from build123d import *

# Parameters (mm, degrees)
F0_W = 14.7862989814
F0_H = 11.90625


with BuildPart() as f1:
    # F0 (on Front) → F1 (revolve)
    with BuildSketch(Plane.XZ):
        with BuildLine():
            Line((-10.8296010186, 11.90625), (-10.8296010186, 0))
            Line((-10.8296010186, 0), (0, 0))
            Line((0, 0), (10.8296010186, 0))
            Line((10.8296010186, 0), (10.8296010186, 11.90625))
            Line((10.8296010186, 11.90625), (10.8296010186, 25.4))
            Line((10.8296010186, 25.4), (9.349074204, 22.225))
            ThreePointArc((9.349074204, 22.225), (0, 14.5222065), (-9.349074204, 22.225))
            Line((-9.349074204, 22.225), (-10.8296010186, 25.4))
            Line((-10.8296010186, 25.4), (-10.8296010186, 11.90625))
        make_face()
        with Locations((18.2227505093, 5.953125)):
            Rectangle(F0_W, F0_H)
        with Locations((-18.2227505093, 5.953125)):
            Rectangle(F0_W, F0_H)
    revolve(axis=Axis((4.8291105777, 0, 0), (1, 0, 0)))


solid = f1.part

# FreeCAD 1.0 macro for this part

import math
import FreeCAD as App
import Part
import Sketcher
from FreeCAD import Vector
Q = App.Units.Quantity

doc = App.newDocument("Part")
params = doc.addObject("Spreadsheet::Sheet", "Params")
for row, (alias, value) in enumerate([
    ("sketch1_radius", "0.375 in"),
    ("sketch1_width", "2.017 in"),
    ("sketch1_height", "0.46875 in"),
    ("revolution_angle", "360 deg"),
], start=1):
    params.set(f"A{row}", alias)
    params.set(f"B{row}", "=" + value)
    params.setAlias(f"B{row}", alias)

body = doc.addObject("PartDesign::Body", "Body")

# Sketch on XZ plane
sketch1 = body.newObject("Sketcher::SketchObject", "Sketch")
sketch1.AttachmentSupport = (doc.getObject("XZ_Plane"), [""])
sketch1.MapMode = "FlatFace"
sketch1.addGeometry(Part.LineSegment(Vector(25.6, 0, 0), Vector(25.6, 11.9, 0)), False)
sketch1.addGeometry(Part.LineSegment(Vector(25.6, 11.9, 0), Vector(10.8, 11.9, 0)), False)
sketch1.addGeometry(Part.LineSegment(Vector(10.8, 11.9, 0), Vector(10.8, 25.4, 0)), False)
sketch1.addGeometry(Part.LineSegment(Vector(10.8, 25.4, 0), Vector(9.3, 22.2, 0)), False)
sketch1.addGeometry(Part.ArcOfCircle(Part.Circle(Vector(0, 24, 0), Vector(0, 0, 1), 9.5), math.radians(-169), math.radians(-11)), False)
sketch1.addGeometry(Part.LineSegment(Vector(-9.3, 22.2, 0), Vector(-10.8, 25.4, 0)), False)
sketch1.addGeometry(Part.LineSegment(Vector(-10.8, 25.4, 0), Vector(-10.8, 11.9, 0)), False)
sketch1.addGeometry(Part.LineSegment(Vector(-10.8, 11.9, 0), Vector(-25.6, 11.9, 0)), False)
sketch1.addGeometry(Part.LineSegment(Vector(-25.6, 11.9, 0), Vector(-25.6, 0, 0)), False)
sketch1.addGeometry(Part.LineSegment(Vector(-25.6, 0, 0), Vector(25.6, 0, 0)), False)
sketch1.addConstraint(Sketcher.Constraint("Coincident", 0, 2, 1, 1))
sketch1.addConstraint(Sketcher.Constraint("Coincident", 1, 2, 2, 1))
sketch1.addConstraint(Sketcher.Constraint("Coincident", 2, 2, 3, 1))
sketch1.addConstraint(Sketcher.Constraint("Coincident", 3, 2, 4, 2))
sketch1.addConstraint(Sketcher.Constraint("Coincident", 4, 1, 5, 1))
sketch1.addConstraint(Sketcher.Constraint("Coincident", 5, 2, 6, 1))
sketch1.addConstraint(Sketcher.Constraint("Coincident", 6, 2, 7, 1))
sketch1.addConstraint(Sketcher.Constraint("Coincident", 7, 2, 8, 1))
sketch1.addConstraint(Sketcher.Constraint("Coincident", 8, 2, 9, 1))
sketch1.addConstraint(Sketcher.Constraint("Coincident", 9, 2, 0, 1))
sketch1.addConstraint(Sketcher.Constraint("Vertical", 0))
sketch1.addConstraint(Sketcher.Constraint("Horizontal", 1))
sketch1.addConstraint(Sketcher.Constraint("Vertical", 2))
sketch1.addConstraint(Sketcher.Constraint("Vertical", 6))
sketch1.addConstraint(Sketcher.Constraint("Horizontal", 7))
sketch1.addConstraint(Sketcher.Constraint("Vertical", 8))
sketch1.addConstraint(Sketcher.Constraint("Horizontal", 9))
sketch1.addConstraint(Sketcher.Constraint("Symmetric", 8, 2, 9, 2, -1, 1))
sketch1.addConstraint(Sketcher.Constraint("Symmetric", 3, 2, 4, 1, -2))
sketch1.addConstraint(Sketcher.Constraint("Symmetric", 2, 2, 5, 2, -2))
sketch1.addConstraint(Sketcher.Constraint("Horizontal", 1, 2, 6, 2))
sketch1.addConstraint(Sketcher.Constraint("DistanceY", -1, 1, 2, 2, Q("1 in")))
sketch1.addConstraint(Sketcher.Constraint("Angle", 3, Q("-115 deg")))
sketch1.addConstraint(Sketcher.Constraint("Radius", 4, Q("0.375 in")))
sketch1.addConstraint(Sketcher.Constraint("DistanceX", 9, 1, 9, 2, Q("2.017 in")))
sketch1.addConstraint(Sketcher.Constraint("DistanceY", 0, 1, 0, 2, Q("0.46875 in")))
sketch1.addConstraint(Sketcher.Constraint("DistanceY", -1, 1, 3, 2, Q("0.875 in")))
sketch1.addConstraint(Sketcher.Constraint("DistanceX", 1, 2, 1, 1, 14.786299))
sketch1.setExpression("Constraints[23]", "Params.sketch1_radius")
sketch1.setExpression("Constraints[24]", "Params.sketch1_width")
sketch1.setExpression("Constraints[25]", "Params.sketch1_height")
revolution = body.newObject("PartDesign::Revolution", "Revolution")
revolution.Profile = sketch1
revolution.ReferenceAxis = (sketch1, ["H_Axis"])
revolution.setExpression("Angle", "Params.revolution_angle")

doc.recompute()
